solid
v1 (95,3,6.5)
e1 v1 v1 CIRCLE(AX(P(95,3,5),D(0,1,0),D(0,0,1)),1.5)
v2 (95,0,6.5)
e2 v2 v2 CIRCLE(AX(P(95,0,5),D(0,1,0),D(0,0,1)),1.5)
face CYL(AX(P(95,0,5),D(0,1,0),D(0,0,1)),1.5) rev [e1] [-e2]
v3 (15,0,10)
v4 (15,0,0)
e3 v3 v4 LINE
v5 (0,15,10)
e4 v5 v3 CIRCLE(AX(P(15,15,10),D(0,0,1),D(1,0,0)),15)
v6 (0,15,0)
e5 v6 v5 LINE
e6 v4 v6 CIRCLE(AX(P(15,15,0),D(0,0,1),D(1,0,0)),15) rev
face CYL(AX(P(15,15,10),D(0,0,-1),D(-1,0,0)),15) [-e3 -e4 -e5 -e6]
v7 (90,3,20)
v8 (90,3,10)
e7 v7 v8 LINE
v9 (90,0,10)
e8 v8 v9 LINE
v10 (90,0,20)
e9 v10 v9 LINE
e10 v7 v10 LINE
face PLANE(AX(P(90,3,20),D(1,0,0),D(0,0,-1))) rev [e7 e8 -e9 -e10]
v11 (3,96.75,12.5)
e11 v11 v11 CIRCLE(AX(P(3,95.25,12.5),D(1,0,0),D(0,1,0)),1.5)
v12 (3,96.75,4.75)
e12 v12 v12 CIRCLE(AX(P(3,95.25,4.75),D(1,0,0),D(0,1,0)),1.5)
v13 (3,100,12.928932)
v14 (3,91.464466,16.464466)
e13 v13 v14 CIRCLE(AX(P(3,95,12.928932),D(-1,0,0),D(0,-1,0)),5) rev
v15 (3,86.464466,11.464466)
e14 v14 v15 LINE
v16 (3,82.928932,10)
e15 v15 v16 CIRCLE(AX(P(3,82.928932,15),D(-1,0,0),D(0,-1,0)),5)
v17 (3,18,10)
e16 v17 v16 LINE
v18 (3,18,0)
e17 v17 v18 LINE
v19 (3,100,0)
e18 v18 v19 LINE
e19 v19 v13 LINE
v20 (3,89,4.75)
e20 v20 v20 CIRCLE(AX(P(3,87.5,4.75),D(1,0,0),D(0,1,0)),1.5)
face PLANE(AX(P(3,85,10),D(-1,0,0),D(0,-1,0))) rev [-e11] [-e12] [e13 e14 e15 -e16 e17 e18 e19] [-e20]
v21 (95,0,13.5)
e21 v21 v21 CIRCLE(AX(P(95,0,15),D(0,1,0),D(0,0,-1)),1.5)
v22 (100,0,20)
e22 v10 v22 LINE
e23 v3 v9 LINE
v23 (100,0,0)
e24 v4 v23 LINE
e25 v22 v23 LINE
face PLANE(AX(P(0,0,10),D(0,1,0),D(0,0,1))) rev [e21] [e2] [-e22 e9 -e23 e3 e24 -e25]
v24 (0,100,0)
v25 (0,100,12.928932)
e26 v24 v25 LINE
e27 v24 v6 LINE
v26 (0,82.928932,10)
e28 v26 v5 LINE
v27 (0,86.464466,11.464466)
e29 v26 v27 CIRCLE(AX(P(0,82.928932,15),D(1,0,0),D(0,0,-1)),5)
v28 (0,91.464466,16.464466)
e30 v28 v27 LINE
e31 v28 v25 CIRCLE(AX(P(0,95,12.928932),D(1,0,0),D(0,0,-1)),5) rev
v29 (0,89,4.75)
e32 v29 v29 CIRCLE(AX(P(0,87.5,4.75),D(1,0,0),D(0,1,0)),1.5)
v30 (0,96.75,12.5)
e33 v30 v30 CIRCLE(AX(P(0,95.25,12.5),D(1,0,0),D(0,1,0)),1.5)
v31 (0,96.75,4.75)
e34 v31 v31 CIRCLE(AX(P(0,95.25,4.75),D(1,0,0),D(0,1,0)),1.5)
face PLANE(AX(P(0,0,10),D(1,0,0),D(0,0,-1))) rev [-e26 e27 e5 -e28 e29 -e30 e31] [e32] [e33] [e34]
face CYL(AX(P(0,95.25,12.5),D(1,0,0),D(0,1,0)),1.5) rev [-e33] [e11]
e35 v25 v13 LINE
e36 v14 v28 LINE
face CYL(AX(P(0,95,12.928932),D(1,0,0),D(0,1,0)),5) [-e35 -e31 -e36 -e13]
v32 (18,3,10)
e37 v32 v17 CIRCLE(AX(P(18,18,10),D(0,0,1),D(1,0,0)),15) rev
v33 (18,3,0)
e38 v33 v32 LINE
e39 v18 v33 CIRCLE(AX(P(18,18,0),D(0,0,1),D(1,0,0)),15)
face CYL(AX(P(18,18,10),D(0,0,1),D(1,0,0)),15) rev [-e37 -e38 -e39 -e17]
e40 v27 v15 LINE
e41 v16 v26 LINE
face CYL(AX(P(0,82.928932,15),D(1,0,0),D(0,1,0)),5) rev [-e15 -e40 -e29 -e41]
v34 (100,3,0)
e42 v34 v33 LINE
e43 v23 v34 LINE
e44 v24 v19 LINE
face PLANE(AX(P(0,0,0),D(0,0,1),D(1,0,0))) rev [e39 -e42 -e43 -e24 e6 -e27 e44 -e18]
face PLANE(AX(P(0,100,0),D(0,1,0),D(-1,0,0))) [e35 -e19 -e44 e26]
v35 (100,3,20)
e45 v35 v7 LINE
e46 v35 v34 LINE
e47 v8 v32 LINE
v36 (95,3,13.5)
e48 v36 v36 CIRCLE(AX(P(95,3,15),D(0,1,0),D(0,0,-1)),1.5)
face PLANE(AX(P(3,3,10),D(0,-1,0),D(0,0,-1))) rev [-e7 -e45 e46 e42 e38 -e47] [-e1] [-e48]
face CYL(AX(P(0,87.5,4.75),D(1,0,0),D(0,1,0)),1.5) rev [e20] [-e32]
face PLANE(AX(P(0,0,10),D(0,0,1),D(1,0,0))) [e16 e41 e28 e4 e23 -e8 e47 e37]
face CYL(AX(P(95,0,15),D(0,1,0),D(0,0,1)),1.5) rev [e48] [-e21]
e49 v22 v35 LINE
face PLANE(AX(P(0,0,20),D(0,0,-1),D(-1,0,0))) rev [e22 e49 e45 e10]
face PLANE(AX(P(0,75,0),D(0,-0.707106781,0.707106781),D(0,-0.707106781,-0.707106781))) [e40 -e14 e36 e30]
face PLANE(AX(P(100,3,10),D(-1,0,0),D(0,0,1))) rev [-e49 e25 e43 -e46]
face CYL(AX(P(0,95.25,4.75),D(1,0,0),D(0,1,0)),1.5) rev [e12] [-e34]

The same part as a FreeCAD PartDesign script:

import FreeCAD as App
import Part
import Sketcher

V = App.Vector


def edges_at(feature, points):
    """Names of the edges that pass closest to the given points."""
    edges = feature.Shape.Edges
    near = lambda p: min(range(len(edges)), key=lambda i: edges[i].distToShape(Part.Vertex(*p))[0])
    return sorted({f"Edge{near(p) + 1}" for p in points})


def add_polygon(sketch, points):
    """Adds a closed chain of lines whose ends are joined by coincident constraints."""
    first, n = sketch.GeometryCount, len(points)
    for a, b in zip(points, points[1:] + points[:1]):
        sketch.addGeometry(Part.LineSegment(App.Vector(*a, 0), App.Vector(*b, 0)), False)
    for i in range(n):
        sketch.addConstraint(Sketcher.Constraint("Coincident", first + i, 2, first + (i + 1) % n, 1))

doc = App.newDocument("Part")
params = doc.addObject("Spreadsheet::Sheet", "Params")
for row, (alias, value) in enumerate([
    ("sketch1_width", "100 mm"),
    ("sketch1_width2", "97 mm"),
    ("sketch1_height", "82 mm"),
    ("pad1_length", "10 mm"),
    ("sketch2_width", "10 mm"),
    ("sketch2_height", "3 mm"),
    ("pad2_length", "10 mm"),
    ("sketch3_diameter", "3 mm"),
    ("pocket1_length", "3 mm"),
    ("fillet_radius", "15 mm"),
    ("sketch4_diameter", "3 mm"),
    ("sketch4_width", "25 mm"),
    ("pad3_length", "3 mm"),
    ("fillet2_radius", "5 mm"),
], start=1):
    params.set(f"A{row}", alias)
    params.set(f"B{row}", "=" + value)
    params.setAlias(f"B{row}", alias)

body = doc.addObject("PartDesign::Body", "Body")

sketch1 = doc.addObject("Sketcher::SketchObject", "Sketch")
body.addObject(sketch1)
sketch1.AttachmentSupport = (doc.XY_Plane, [""])
sketch1.MapMode = "FlatFace"
add_polygon(sketch1, [(0, 0), (100, 0), (100, 3), (3, 3), (3, 85), (0, 85)])
sketch1.addConstraint(Sketcher.Constraint("Horizontal", 0))
sketch1.addConstraint(Sketcher.Constraint("Vertical", 1))
sketch1.addConstraint(Sketcher.Constraint("Horizontal", 2))
sketch1.addConstraint(Sketcher.Constraint("Vertical", 3))
sketch1.addConstraint(Sketcher.Constraint("Horizontal", 4))
sketch1.addConstraint(Sketcher.Constraint("Vertical", 5))
sketch1.addConstraint(Sketcher.Constraint("Coincident", 5, 2, -1, 1))
sketch1.addConstraint(Sketcher.Constraint("Equal", 4, 1))
sketch1.addConstraint(Sketcher.Constraint("DistanceX", 0, 1, 0, 2, 100.0))
sketch1.addConstraint(Sketcher.Constraint("DistanceX", 2, 2, 2, 1, 97.0))
sketch1.addConstraint(Sketcher.Constraint("DistanceY", 3, 1, 3, 2, 82.0))
sketch1.setExpression("Constraints[14]", "Params.sketch1_width")
sketch1.setExpression("Constraints[15]", "Params.sketch1_width2")
sketch1.setExpression("Constraints[16]", "Params.sketch1_height")
pad1 = doc.addObject("PartDesign::Pad", "Pad")
body.addObject(pad1)
pad1.Profile = sketch1
pad1.setExpression("Length", "Params.pad1_length")

sketch2 = doc.addObject("Sketcher::SketchObject", "Sketch001")
body.addObject(sketch2)
sketch2.AttachmentSupport = (doc.XY_Plane, [""])
sketch2.MapMode = "FlatFace"
sketch2.AttachmentOffset = App.Placement(V(0, 0, 10), App.Rotation())
add_polygon(sketch2, [(90, 3), (90, 0), (100, 0), (100, 3)])
sketch2.addConstraint(Sketcher.Constraint("Vertical", 0))
sketch2.addConstraint(Sketcher.Constraint("Horizontal", 1))
sketch2.addConstraint(Sketcher.Constraint("Vertical", 2))
sketch2.addConstraint(Sketcher.Constraint("Horizontal", 3))
sketch2.addConstraint(Sketcher.Constraint("PointOnObject", 0, 2, -1))
sketch2.addConstraint(Sketcher.Constraint("DistanceX", 1, 1, 1, 2, 10.0))
sketch2.addConstraint(Sketcher.Constraint("DistanceY", 0, 2, 0, 1, 3.0))
sketch2.addConstraint(Sketcher.Constraint("DistanceX", -1, 1, 0, 2, 90.0))
sketch2.setExpression("Constraints[9]", "Params.sketch2_width")
sketch2.setExpression("Constraints[10]", "Params.sketch2_height")
pad2 = doc.addObject("PartDesign::Pad", "Pad001")
body.addObject(pad2)
pad2.Profile = sketch2
pad2.setExpression("Length", "Params.pad2_length")

sketch3 = doc.addObject("Sketcher::SketchObject", "Sketch002")
body.addObject(sketch3)
sketch3.AttachmentSupport = (doc.XZ_Plane, [""])
sketch3.MapMode = "FlatFace"
sketch3.AttachmentOffset = App.Placement(V(0, 0, -3), App.Rotation())
sketch3.addGeometry(Part.Circle(V(95, 5, 0), V(0, 0, 1), 1.5), False)
sketch3.addGeometry(Part.Circle(V(95, 15, 0), V(0, 0, 1), 1.5), False)
sketch3.addConstraint(Sketcher.Constraint("Equal", 0, 1))
sketch3.addConstraint(Sketcher.Constraint("Vertical", 0, 3, 1, 3))
sketch3.addConstraint(Sketcher.Constraint("Diameter", 0, 3.0))
sketch3.addConstraint(Sketcher.Constraint("DistanceX", -1, 1, 0, 3, 95.0))
sketch3.addConstraint(Sketcher.Constraint("DistanceY", -1, 1, 0, 3, 5.0))
sketch3.addConstraint(Sketcher.Constraint("DistanceY", -1, 1, 1, 3, 15.0))
sketch3.setExpression("Constraints[2]", "Params.sketch3_diameter")
pocket1 = doc.addObject("PartDesign::Pocket", "Pocket")
body.addObject(pocket1)
pocket1.Profile = sketch3
pocket1.setExpression("Length", "Params.pocket1_length")
pocket1.Reversed = True
doc.recompute()

fillet = doc.addObject("PartDesign::Fillet", "Fillet")
body.addObject(fillet)
fillet.Base = (pocket1, edges_at(pocket1, [(3, 3, 5), (0, 0, 5)]))
fillet.setExpression("Radius", "Params.fillet_radius")

sketch4 = doc.addObject("Sketcher::SketchObject", "Sketch003")
body.addObject(sketch4)
sketch4.AttachmentSupport = (doc.YZ_Plane, [""])
sketch4.MapMode = "FlatFace"
sketch4.AttachmentOffset = App.Placement(V(0, 0, 3), App.Rotation())
add_polygon(sketch4, [(100, 0), (100, 25), (75, 0)])
sketch4.addGeometry(Part.Circle(V(87.5, 4.8, 0), V(0, 0, 1), 1.5), False)
sketch4.addGeometry(Part.Circle(V(95.2, 12.5, 0), V(0, 0, 1), 1.5), False)
sketch4.addGeometry(Part.Circle(V(95.2, 4.8, 0), V(0, 0, 1), 1.5), False)
sketch4.addConstraint(Sketcher.Constraint("Vertical", 0))
sketch4.addConstraint(Sketcher.Constraint("Horizontal", 2))
sketch4.addConstraint(Sketcher.Constraint("Equal", 3, 4))
sketch4.addConstraint(Sketcher.Constraint("Equal", 4, 5))
sketch4.addConstraint(Sketcher.Constraint("PointOnObject", 1, 2, -1))
sketch4.addConstraint(Sketcher.Constraint("Horizontal", 3, 3, 5, 3))
sketch4.addConstraint(Sketcher.Constraint("Vertical", 4, 3, 5, 3))
sketch4.addConstraint(Sketcher.Constraint("Equal", 2, 0))
sketch4.addConstraint(Sketcher.Constraint("Diameter", 3, 3.0))
sketch4.addConstraint(Sketcher.Constraint("DistanceX", 2, 1, 2, 2, 25.0))
sketch4.addConstraint(Sketcher.Constraint("DistanceX", -1, 1, 0, 2, 100.0))
sketch4.addConstraint(Sketcher.Constraint("DistanceX", -1, 1, 3, 3, 87.5))
sketch4.addConstraint(Sketcher.Constraint("DistanceY", -1, 1, 4, 3, 12.5))
sketch4.addConstraint(Sketcher.Constraint("DistanceY", -1, 1, 3, 3, 4.75))
sketch4.addConstraint(Sketcher.Constraint("DistanceX", -1, 1, 4, 3, 95.25))
sketch4.setExpression("Constraints[11]", "Params.sketch4_diameter")
sketch4.setExpression("Constraints[12]", "Params.sketch4_width")
pad3 = doc.addObject("PartDesign::Pad", "Pad002")
body.addObject(pad3)
pad3.Profile = sketch4
pad3.setExpression("Length", "Params.pad3_length")
pad3.Reversed = True
doc.recompute()

fillet2 = doc.addObject("PartDesign::Fillet", "Fillet001")
body.addObject(fillet2)
fillet2.Base = (pad3, edges_at(pad3, [(1.5, 85, 10), (1.5, 100, 25)]))
fillet2.setExpression("Radius", "Params.fillet2_radius")

doc.recompute()
